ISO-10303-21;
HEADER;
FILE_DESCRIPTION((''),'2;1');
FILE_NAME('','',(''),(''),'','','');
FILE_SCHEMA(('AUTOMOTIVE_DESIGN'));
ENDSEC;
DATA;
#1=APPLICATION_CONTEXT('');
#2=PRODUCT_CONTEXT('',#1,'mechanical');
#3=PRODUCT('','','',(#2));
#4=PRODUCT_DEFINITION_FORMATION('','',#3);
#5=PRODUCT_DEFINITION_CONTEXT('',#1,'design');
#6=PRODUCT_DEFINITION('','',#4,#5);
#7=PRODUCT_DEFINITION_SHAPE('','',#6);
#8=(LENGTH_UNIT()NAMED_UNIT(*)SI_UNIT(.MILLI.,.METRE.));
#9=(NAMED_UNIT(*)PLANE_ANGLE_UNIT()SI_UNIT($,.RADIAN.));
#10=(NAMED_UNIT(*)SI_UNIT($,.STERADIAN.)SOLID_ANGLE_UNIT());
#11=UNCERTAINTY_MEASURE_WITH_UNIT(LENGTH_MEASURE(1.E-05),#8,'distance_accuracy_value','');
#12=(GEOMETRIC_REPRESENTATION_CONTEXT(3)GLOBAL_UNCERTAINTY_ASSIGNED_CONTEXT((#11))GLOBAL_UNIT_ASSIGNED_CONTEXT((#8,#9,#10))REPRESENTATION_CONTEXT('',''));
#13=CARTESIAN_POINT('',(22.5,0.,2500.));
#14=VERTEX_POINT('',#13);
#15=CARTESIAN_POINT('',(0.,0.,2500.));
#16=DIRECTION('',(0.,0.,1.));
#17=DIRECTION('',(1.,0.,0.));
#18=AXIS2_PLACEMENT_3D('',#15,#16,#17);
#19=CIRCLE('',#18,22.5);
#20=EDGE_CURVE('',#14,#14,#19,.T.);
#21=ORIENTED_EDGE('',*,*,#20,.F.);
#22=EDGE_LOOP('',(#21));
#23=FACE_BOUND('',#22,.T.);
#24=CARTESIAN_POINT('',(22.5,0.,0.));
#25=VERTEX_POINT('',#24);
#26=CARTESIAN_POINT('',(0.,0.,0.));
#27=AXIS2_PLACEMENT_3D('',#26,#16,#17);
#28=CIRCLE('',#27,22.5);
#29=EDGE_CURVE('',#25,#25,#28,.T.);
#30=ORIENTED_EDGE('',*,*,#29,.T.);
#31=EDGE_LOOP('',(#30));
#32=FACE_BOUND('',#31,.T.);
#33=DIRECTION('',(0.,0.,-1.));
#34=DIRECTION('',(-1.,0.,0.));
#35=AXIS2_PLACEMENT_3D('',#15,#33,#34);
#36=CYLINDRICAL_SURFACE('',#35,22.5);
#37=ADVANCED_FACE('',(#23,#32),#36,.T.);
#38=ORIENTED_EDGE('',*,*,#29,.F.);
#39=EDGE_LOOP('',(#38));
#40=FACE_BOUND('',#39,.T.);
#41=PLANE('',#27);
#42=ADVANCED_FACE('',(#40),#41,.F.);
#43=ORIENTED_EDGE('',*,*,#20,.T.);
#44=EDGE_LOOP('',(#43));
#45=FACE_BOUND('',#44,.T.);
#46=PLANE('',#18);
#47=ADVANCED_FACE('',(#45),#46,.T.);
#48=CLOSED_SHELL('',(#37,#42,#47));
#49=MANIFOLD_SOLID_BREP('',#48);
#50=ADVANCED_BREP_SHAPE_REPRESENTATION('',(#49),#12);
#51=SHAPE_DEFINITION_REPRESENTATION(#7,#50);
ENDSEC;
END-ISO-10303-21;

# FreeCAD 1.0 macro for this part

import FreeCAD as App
import Part
import Sketcher

V = App.Vector

doc = App.newDocument("Part")
body = doc.addObject("PartDesign::Body", "Body")

# Sketch on XY plane
sketch1 = body.newObject("Sketcher::SketchObject", "Sketch")
sketch1.AttachmentSupport = (doc.getObject("XY_Plane"), [""])
sketch1.MapMode = "FlatFace"
sketch1.addGeometry(Part.Circle(V(0, 0, 0), V(0, 0, 1), 22), False)
sketch1.addConstraint([
    Sketcher.Constraint("Coincident", 0, 3, -1, 1),
    Sketcher.Constraint("Diameter", 0, 45.0),
])
pad1 = body.newObject("PartDesign::Pad", "Pad")
pad1.Profile = sketch1
pad1.Length = 2500

doc.recompute()
